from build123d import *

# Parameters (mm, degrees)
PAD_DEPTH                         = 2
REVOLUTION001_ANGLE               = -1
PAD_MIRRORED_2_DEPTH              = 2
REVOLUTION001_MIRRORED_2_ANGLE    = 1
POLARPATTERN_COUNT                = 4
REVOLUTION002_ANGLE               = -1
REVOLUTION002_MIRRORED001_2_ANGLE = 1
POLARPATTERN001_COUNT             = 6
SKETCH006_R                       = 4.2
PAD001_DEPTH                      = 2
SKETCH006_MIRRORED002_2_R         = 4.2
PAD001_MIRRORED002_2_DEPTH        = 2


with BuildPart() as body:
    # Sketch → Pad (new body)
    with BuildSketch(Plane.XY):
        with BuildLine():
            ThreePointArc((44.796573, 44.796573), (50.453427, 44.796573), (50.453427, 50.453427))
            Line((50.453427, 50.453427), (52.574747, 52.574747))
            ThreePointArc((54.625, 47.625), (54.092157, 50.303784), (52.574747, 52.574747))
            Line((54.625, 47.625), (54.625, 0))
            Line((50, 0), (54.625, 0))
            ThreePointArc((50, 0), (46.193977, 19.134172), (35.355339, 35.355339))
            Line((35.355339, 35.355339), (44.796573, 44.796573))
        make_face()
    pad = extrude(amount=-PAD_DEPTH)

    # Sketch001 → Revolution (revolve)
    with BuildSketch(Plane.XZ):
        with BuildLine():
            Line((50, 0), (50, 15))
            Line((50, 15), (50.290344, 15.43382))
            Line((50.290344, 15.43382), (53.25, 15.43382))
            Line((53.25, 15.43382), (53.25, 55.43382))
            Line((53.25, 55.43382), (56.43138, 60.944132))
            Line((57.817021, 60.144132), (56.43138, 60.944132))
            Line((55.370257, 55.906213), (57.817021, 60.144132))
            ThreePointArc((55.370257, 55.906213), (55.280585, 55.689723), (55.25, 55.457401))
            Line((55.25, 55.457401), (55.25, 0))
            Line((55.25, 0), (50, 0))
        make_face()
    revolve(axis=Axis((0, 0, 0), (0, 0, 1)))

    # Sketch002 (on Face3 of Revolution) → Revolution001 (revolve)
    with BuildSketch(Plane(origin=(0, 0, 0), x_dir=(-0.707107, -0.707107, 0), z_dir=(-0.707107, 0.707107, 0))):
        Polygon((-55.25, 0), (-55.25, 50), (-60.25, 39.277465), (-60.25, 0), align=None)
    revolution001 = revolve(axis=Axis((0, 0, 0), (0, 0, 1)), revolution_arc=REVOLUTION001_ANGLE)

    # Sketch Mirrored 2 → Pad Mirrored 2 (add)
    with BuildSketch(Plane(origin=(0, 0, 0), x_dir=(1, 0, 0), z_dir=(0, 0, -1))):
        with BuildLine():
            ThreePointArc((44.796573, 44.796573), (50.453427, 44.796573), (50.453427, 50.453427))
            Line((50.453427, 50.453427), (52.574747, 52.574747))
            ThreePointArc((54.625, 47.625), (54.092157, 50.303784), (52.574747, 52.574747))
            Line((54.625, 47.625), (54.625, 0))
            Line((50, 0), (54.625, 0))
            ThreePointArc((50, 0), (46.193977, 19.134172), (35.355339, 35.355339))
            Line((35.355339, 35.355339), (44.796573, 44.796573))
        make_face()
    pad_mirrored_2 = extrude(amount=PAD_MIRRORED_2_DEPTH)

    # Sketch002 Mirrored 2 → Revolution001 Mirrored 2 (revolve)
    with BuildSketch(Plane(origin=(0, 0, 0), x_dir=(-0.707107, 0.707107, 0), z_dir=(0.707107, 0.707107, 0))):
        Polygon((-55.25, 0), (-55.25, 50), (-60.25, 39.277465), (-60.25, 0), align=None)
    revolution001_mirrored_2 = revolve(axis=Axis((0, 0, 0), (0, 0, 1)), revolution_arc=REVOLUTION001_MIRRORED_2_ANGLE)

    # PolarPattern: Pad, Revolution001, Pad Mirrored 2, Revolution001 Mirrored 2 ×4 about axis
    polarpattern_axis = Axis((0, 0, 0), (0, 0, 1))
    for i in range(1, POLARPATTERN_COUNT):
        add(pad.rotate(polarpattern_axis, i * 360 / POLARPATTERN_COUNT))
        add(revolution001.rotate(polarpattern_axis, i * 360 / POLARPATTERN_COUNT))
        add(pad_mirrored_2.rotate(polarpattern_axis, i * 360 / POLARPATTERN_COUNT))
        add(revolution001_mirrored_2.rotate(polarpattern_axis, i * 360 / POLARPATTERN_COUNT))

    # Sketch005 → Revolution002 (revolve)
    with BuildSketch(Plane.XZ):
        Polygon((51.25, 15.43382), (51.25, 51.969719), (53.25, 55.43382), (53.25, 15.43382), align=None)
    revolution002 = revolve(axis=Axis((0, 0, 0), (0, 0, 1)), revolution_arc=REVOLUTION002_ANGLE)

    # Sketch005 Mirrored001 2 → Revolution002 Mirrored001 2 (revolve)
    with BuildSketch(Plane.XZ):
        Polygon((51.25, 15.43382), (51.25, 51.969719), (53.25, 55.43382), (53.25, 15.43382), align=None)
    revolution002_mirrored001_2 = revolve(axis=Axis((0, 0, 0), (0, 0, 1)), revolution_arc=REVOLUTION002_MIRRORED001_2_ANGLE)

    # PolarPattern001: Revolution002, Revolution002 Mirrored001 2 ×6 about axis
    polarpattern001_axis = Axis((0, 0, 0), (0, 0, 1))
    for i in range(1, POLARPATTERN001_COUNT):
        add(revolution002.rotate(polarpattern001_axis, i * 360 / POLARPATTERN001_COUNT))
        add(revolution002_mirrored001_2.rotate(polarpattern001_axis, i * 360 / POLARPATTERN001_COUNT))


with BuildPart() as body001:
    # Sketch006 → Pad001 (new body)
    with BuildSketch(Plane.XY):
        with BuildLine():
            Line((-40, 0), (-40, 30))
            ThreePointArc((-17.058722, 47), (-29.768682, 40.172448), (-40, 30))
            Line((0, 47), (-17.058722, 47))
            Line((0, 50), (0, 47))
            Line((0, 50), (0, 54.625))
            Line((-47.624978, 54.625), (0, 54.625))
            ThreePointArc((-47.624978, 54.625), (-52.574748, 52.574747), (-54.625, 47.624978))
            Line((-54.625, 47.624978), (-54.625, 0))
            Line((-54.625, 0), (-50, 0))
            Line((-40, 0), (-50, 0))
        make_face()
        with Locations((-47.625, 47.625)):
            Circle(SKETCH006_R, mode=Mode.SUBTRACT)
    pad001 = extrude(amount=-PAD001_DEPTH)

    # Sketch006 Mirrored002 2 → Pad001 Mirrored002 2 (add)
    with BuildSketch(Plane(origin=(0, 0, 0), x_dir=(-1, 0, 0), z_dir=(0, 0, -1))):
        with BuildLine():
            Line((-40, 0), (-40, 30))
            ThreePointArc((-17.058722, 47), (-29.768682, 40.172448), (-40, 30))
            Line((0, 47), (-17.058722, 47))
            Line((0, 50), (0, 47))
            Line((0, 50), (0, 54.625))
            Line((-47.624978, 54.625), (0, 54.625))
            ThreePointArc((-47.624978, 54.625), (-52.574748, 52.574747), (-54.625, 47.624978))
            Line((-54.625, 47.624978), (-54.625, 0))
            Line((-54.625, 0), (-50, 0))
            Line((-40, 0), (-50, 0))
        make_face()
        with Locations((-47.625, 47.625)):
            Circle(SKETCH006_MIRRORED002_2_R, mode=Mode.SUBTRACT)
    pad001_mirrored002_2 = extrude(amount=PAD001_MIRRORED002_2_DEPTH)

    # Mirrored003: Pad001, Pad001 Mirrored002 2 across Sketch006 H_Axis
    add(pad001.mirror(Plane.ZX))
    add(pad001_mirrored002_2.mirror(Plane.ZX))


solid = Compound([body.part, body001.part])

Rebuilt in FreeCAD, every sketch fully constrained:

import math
import FreeCAD as App
import Part
import Sketcher
Q = App.Units.Quantity


def add_polygon(sketch, points):
    """Adds a closed chain of lines whose ends are joined by coincident constraints."""
    first, n = sketch.GeometryCount, len(points)
    for a, b in zip(points, points[1:] + points[:1]):
        sketch.addGeometry(Part.LineSegment(App.Vector(*a, 0), App.Vector(*b, 0)), False)
    for i in range(n):
        sketch.addConstraint(Sketcher.Constraint("Coincident", first + i, 2, first + (i + 1) % n, 1))

doc = App.newDocument("Part")
body = doc.addObject("PartDesign::Body", "Body")

sketch1 = body.newObject("Sketcher::SketchObject", "Sketch")
sketch1.AttachmentSupport = (doc.getObject("XY_Plane"), [""])
sketch1.MapMode = "FlatFace"
sketch1.addGeometry([
    Part.ArcOfCircle(Part.Circle(App.Vector(47.6, 47.6, 0), App.Vector(0, 0, 1), 4), math.radians(-135), math.radians(45)),
    Part.LineSegment(App.Vector(44.8, 44.8, 0), App.Vector(35.4, 35.4, 0)),
    Part.ArcOfCircle(Part.Circle(App.Vector(0, 0, 0), App.Vector(0, 0, 1), 50), math.radians(0), math.radians(45)),
    Part.LineSegment(App.Vector(50, 0, 0), App.Vector(54.6, 0, 0)),
    Part.LineSegment(App.Vector(54.6, 0, 0), App.Vector(54.6, 47.6, 0)),
    Part.ArcOfCircle(Part.Circle(App.Vector(47.6, 47.6, 0), App.Vector(0, 0, 1), 7), math.radians(0), math.radians(45)),
    Part.LineSegment(App.Vector(52.6, 52.6, 0), App.Vector(50.5, 50.5, 0)),
], False)
sketch1.addConstraint([
    Sketcher.Constraint("Coincident", 0, 1, 1, 1),
    Sketcher.Constraint("Coincident", 1, 2, 2, 2),
    Sketcher.Constraint("Coincident", 2, 1, 3, 1),
    Sketcher.Constraint("Coincident", 3, 2, 4, 1),
    Sketcher.Constraint("Tangent", 4, 2, 5, 1),
    Sketcher.Constraint("Coincident", 5, 2, 6, 1),
    Sketcher.Constraint("Coincident", 6, 2, 0, 2),
    Sketcher.Constraint("Horizontal", 3),
    Sketcher.Constraint("Vertical", 4),
    Sketcher.Constraint("Coincident", 2, 3, -1, 1),
    Sketcher.Constraint("Coincident", 5, 3, 0, 3),
    Sketcher.Constraint("PointOnObject", 2, 1, -1),
    Sketcher.Constraint("Parallel", 1, 6),
    Sketcher.Constraint("Radius", 0, 4.0),
    Sketcher.Constraint("Angle", 1, Q("-135 deg")),
    Sketcher.Constraint("Distance", 6, 3.0),
    Sketcher.Constraint("DistanceX", -1, 1, 2, 1, 50.0),
    Sketcher.Constraint("DistanceX", 3, 1, 3, 2, 4.625),
    Sketcher.Constraint("DistanceY", 4, 1, 4, 2, 47.625),
    Sketcher.Constraint("DistanceX", -1, 1, 1, 2, 35.355339),
    Sketcher.Constraint("DistanceX", 5, 3, 5, 2, 4.94974),
])
pad1 = body.newObject("PartDesign::Pad", "Pad")
pad1.Profile = sketch1
pad1.Length = 2
pad1.Reversed = True

sketch2 = body.newObject("Sketcher::SketchObject", "Sketch001")
sketch2.AttachmentSupport = (doc.getObject("XZ_Plane"), [""])
sketch2.MapMode = "FlatFace"
sketch2.addGeometry([
    Part.LineSegment(App.Vector(50, 15, 0), App.Vector(50, 0, 0)),
    Part.LineSegment(App.Vector(50, 0, 0), App.Vector(55.25, 0, 0)),
    Part.LineSegment(App.Vector(55.25, 0, 0), App.Vector(55.25, 55.46, 0)),
    Part.ArcOfCircle(Part.Circle(App.Vector(56.15, 55.46, 0), App.Vector(0, 0, 1), 0.9), math.radians(150), math.radians(180)),
    Part.LineSegment(App.Vector(55.37, 55.91, 0), App.Vector(57.82, 60.14, 0)),
    Part.LineSegment(App.Vector(57.82, 60.14, 0), App.Vector(56.43, 60.94, 0)),
    Part.LineSegment(App.Vector(56.43, 60.94, 0), App.Vector(53.25, 55.43, 0)),
    Part.LineSegment(App.Vector(53.25, 55.43, 0), App.Vector(53.25, 15.43, 0)),
    Part.LineSegment(App.Vector(53.25, 15.43, 0), App.Vector(50.29, 15.43, 0)),
    Part.LineSegment(App.Vector(50.29, 15.43, 0), App.Vector(50, 15, 0)),
], False)
sketch2.addConstraint([
    Sketcher.Constraint("Coincident", 0, 2, 1, 1),
    Sketcher.Constraint("Coincident", 1, 2, 2, 1),
    Sketcher.Constraint("Coincident", 2, 2, 3, 2),
    Sketcher.Constraint("Coincident", 3, 1, 4, 1),
    Sketcher.Constraint("Coincident", 4, 2, 5, 1),
    Sketcher.Constraint("Coincident", 5, 2, 6, 1),
    Sketcher.Constraint("Coincident", 6, 2, 7, 1),
    Sketcher.Constraint("Coincident", 7, 2, 8, 1),
    Sketcher.Constraint("Coincident", 8, 2, 9, 1),
    Sketcher.Constraint("Coincident", 9, 2, 0, 1),
    Sketcher.Constraint("Vertical", 0),
    Sketcher.Constraint("Horizontal", 1),
    Sketcher.Constraint("Vertical", 2),
    Sketcher.Constraint("Vertical", 7),
    Sketcher.Constraint("Horizontal", 8),
    Sketcher.Constraint("PointOnObject", 0, 2, -1),
    Sketcher.Constraint("Perpendicular", 4, 5),
    Sketcher.Constraint("Perpendicular", 5, 6),
    Sketcher.Constraint("DistanceY", 0, 2, 0, 1, 15.0),
    Sketcher.Constraint("DistanceY", 7, 2, 7, 1, 40.0),
    Sketcher.Constraint("Angle", 4, Q("59.999997 deg")),
    Sketcher.Constraint("DistanceX", -1, 1, 0, 2, 50.0),
    Sketcher.Constraint("DistanceX", 6, 2, 2, 2, 2.0),
    Sketcher.Constraint("Distance", 5, 1.6),
    Sketcher.Constraint("DistanceX", 1, 1, 1, 2, 5.25),
    Sketcher.Constraint("DistanceY", 2, 1, 2, 2, 55.457401),
    Sketcher.Constraint("Radius", 3, 0.897627),
    Sketcher.Constraint("Distance", 6, 6.36276),
    Sketcher.Constraint("DistanceX", 8, 2, 8, 1, 2.959656),
    Sketcher.Constraint("DistanceY", -1, 1, 6, 2, 55.43382),
    Sketcher.Constraint("DistanceY", 2, 2, 3, 1, 0.448812),
])
revolution = body.newObject("PartDesign::Revolution", "Revolution")
revolution.Profile = sketch2
revolution.ReferenceAxis = (sketch2, ["V_Axis"])
revolution.Angle = 360

sketch3 = body.newObject("Sketcher::SketchObject", "Sketch002")
sketch3.Placement = App.Placement(App.Vector(0, 0, 0), App.Rotation(App.Vector(-0.707106781, -0.707106781, 0), App.Vector(0, 0, 0.999999999), App.Vector(-0.707106781, 0.707106781, 0), "ZXY"))
add_polygon(sketch3, [(-55.2, 0), (-55.2, 50), (-60.2, 39.3), (-60.2, 0)])
sketch3.addConstraint([
    Sketcher.Constraint("Vertical", 0),
    Sketcher.Constraint("Vertical", 2),
    Sketcher.Constraint("Horizontal", 3),
    Sketcher.Constraint("PointOnObject", 2, 2, -1),
    Sketcher.Constraint("DistanceX", 3, 1, 3, 2, 5.0),
    Sketcher.Constraint("DistanceY", 0, 1, 0, 2, 50.0),
    Sketcher.Constraint("Angle", 1, Q("-114.999999 deg")),
    Sketcher.Constraint("DistanceX", 0, 2, -1, 1, 55.25),
])
revolution2 = body.newObject("PartDesign::Revolution", "Revolution001")
revolution2.Profile = sketch3
revolution2.ReferenceAxis = (sketch3, ["V_Axis"])
revolution2.Angle = 1
revolution2.Reversed = True

sketch4 = body.newObject("Sketcher::SketchObject", "Sketch003")
sketch4.AttachmentSupport = (doc.getObject("XY_Plane"), [""])
sketch4.MapMode = "FlatFace"
sketch4.addGeometry([
    Part.ArcOfCircle(Part.Circle(App.Vector(47.6, -47.6, 0), App.Vector(0, 0, 1), 4), math.radians(-45), math.radians(135)),
    Part.LineSegment(App.Vector(44.8, -44.8, 0), App.Vector(35.4, -35.4, 0)),
    Part.ArcOfCircle(Part.Circle(App.Vector(0, 0, 0), App.Vector(0, 0, 1), 50), math.radians(-45), math.radians(0)),
    Part.LineSegment(App.Vector(50, 0, 0), App.Vector(54.6, 0, 0)),
    Part.LineSegment(App.Vector(54.6, 0, 0), App.Vector(54.6, -47.6, 0)),
    Part.ArcOfCircle(Part.Circle(App.Vector(47.6, -47.6, 0), App.Vector(0, 0, 1), 7), math.radians(-45), math.radians(0)),
    Part.LineSegment(App.Vector(52.6, -52.6, 0), App.Vector(50.5, -50.5, 0)),
], False)
sketch4.addConstraint([
    Sketcher.Constraint("Coincident", 0, 2, 1, 1),
    Sketcher.Constraint("Coincident", 1, 2, 2, 1),
    Sketcher.Constraint("Coincident", 2, 2, 3, 1),
    Sketcher.Constraint("Coincident", 3, 2, 4, 1),
    Sketcher.Constraint("Tangent", 4, 2, 5, 2),
    Sketcher.Constraint("Coincident", 5, 1, 6, 1),
    Sketcher.Constraint("Coincident", 6, 2, 0, 1),
    Sketcher.Constraint("Horizontal", 3),
    Sketcher.Constraint("Vertical", 4),
    Sketcher.Constraint("Coincident", 2, 3, -1, 1),
    Sketcher.Constraint("Coincident", 5, 3, 0, 3),
    Sketcher.Constraint("PointOnObject", 2, 2, -1),
    Sketcher.Constraint("Parallel", 1, 6),
    Sketcher.Constraint("Radius", 0, 4.0),
    Sketcher.Constraint("Angle", 1, Q("135 deg")),
    Sketcher.Constraint("Distance", 6, 3.0),
    Sketcher.Constraint("DistanceX", -1, 1, 2, 2, 50.0),
    Sketcher.Constraint("DistanceX", 3, 1, 3, 2, 4.625),
    Sketcher.Constraint("DistanceY", 4, 2, 4, 1, 47.625),
    Sketcher.Constraint("DistanceX", -1, 1, 1, 2, 35.355339),
    Sketcher.Constraint("DistanceX", 5, 3, 5, 1, 4.94974),
])
pad2 = body.newObject("PartDesign::Pad", "Pad001")
pad2.Profile = sketch4
pad2.Length = 2
pad2.Reversed = True

sketch5 = body.newObject("Sketcher::SketchObject", "Sketch004")
sketch5.Placement = App.Placement(App.Vector(0, 0, 0), App.Rotation(App.Vector(-0.707106781, 0.707106781, 0), App.Vector(0, 0, 0.999999999), App.Vector(0.707106781, 0.707106781, 0), "ZXY"))
add_polygon(sketch5, [(-55.2, 0), (-55.2, 50), (-60.2, 39.3), (-60.2, 0)])
sketch5.addConstraint([
    Sketcher.Constraint("Vertical", 0),
    Sketcher.Constraint("Vertical", 2),
    Sketcher.Constraint("Horizontal", 3),
    Sketcher.Constraint("PointOnObject", 2, 2, -1),
    Sketcher.Constraint("DistanceX", 3, 1, 3, 2, 5.0),
    Sketcher.Constraint("DistanceY", 0, 1, 0, 2, 50.0),
    Sketcher.Constraint("Angle", 1, Q("-114.999999 deg")),
    Sketcher.Constraint("DistanceX", 0, 2, -1, 1, 55.25),
])
revolution3 = body.newObject("PartDesign::Revolution", "Revolution002")
revolution3.Profile = sketch5
revolution3.ReferenceAxis = (sketch5, ["V_Axis"])
revolution3.Angle = 1
doc.recompute()

polarpattern = body.newObject("PartDesign::PolarPattern", "PolarPattern")
polarpattern.Originals = [pad1, revolution2, pad2, revolution3]
polarpattern.Axis = (doc.getObject("Z_Axis"), [""])
polarpattern.Angle = 360
polarpattern.Occurrences = 4
body.Tip = polarpattern

sketch6 = body.newObject("Sketcher::SketchObject", "Sketch005")
sketch6.AttachmentSupport = (doc.getObject("XZ_Plane"), [""])
sketch6.MapMode = "FlatFace"
add_polygon(sketch6, [(51.2, 52), (51.2, 15.4), (53.2, 15.4), (53.2, 55.4)])
sketch6.addConstraint([
    Sketcher.Constraint("Vertical", 0),
    Sketcher.Constraint("Horizontal", 1),
    Sketcher.Constraint("Vertical", 2),
    Sketcher.Constraint("DistanceX", 1, 1, 1, 2, 2.0),
    Sketcher.Constraint("DistanceY", 2, 1, 2, 2, 40.0),
    Sketcher.Constraint("Angle", 3, Q("-120.000004 deg")),
    Sketcher.Constraint("DistanceX", -1, 1, 0, 2, 51.25),
    Sketcher.Constraint("DistanceY", -1, 1, 0, 2, 15.43382),
])
revolution4 = body.newObject("PartDesign::Revolution", "Revolution003")
revolution4.Profile = sketch6
revolution4.ReferenceAxis = (sketch6, ["V_Axis"])
revolution4.Angle = 1
revolution4.Reversed = True

sketch7 = body.newObject("Sketcher::SketchObject", "Sketch006")
sketch7.AttachmentSupport = (doc.getObject("XZ_Plane"), [""])
sketch7.MapMode = "FlatFace"
add_polygon(sketch7, [(51.2, 52), (51.2, 15.4), (53.2, 15.4), (53.2, 55.4)])
sketch7.addConstraint([
    Sketcher.Constraint("Vertical", 0),
    Sketcher.Constraint("Horizontal", 1),
    Sketcher.Constraint("Vertical", 2),
    Sketcher.Constraint("DistanceX", 1, 1, 1, 2, 2.0),
    Sketcher.Constraint("DistanceY", 2, 1, 2, 2, 40.0),
    Sketcher.Constraint("Angle", 3, Q("-120.000004 deg")),
    Sketcher.Constraint("DistanceX", -1, 1, 0, 2, 51.25),
    Sketcher.Constraint("DistanceY", -1, 1, 0, 2, 15.43382),
])
revolution5 = body.newObject("PartDesign::Revolution", "Revolution004")
revolution5.Profile = sketch7
revolution5.ReferenceAxis = (sketch7, ["V_Axis"])
revolution5.Angle = 1
doc.recompute()

polarpattern2 = body.newObject("PartDesign::PolarPattern", "PolarPattern001")
polarpattern2.Originals = [revolution4, revolution5]
polarpattern2.Axis = (doc.getObject("Z_Axis"), [""])
polarpattern2.Angle = 360
polarpattern2.Occurrences = 6
body.Tip = polarpattern2
body2 = doc.addObject("PartDesign::Body", "Body001")

sketch8 = body2.newObject("Sketcher::SketchObject", "Sketch007")
sketch8.AttachmentSupport = (doc.getObject("XY_Plane001"), [""])
sketch8.MapMode = "FlatFace"
sketch8.addGeometry([
    Part.LineSegment(App.Vector(-40, 0, 0), App.Vector(-40, 30, 0)),
    Part.ArcOfCircle(Part.Circle(App.Vector(0, 0, 0), App.Vector(0, 0, 1), 50), math.radians(110), math.radians(143)),
    Part.LineSegment(App.Vector(-17.1, 47, 0), App.Vector(0, 47, 0)),
    Part.LineSegment(App.Vector(0, 47, 0), App.Vector(0, 54.6, 0)),
    Part.LineSegment(App.Vector(0, 54.6, 0), App.Vector(-47.6, 54.6, 0)),
    Part.ArcOfCircle(Part.Circle(App.Vector(-47.6, 47.6, 0), App.Vector(0, 0, 1), 7), math.radians(90), math.radians(180)),
    Part.LineSegment(App.Vector(-54.6, 47.6, 0), App.Vector(-54.6, 0, 0)),
    Part.LineSegment(App.Vector(-54.6, 0, 0), App.Vector(-40, 0, 0)),
    Part.Circle(App.Vector(-47.6, 47.6, 0), App.Vector(0, 0, 1), 4.2),
], False)
sketch8.addConstraint([
    Sketcher.Constraint("Coincident", 0, 2, 1, 2),
    Sketcher.Constraint("Coincident", 1, 1, 2, 1),
    Sketcher.Constraint("Coincident", 2, 2, 3, 1),
    Sketcher.Constraint("Coincident", 3, 2, 4, 1),
    Sketcher.Constraint("Coincident", 4, 2, 5, 1),
    Sketcher.Constraint("Coincident", 5, 2, 6, 1),
    Sketcher.Constraint("Coincident", 6, 2, 7, 1),
    Sketcher.Constraint("Coincident", 7, 2, 0, 1),
    Sketcher.Constraint("Vertical", 0),
    Sketcher.Constraint("Horizontal", 2),
    Sketcher.Constraint("Vertical", 3),
    Sketcher.Constraint("Horizontal", 4),
    Sketcher.Constraint("Vertical", 6),
    Sketcher.Constraint("Horizontal", 7),
    Sketcher.Constraint("Coincident", 1, 3, -1, 1),
    Sketcher.Constraint("Coincident", 8, 3, 5, 3),
    Sketcher.Constraint("PointOnObject", 2, 2, -2),
    Sketcher.Constraint("PointOnObject", 6, 2, -1),
    Sketcher.Constraint("Equal", 4, 6),
    Sketcher.Constraint("Radius", 1, 49.999998),
    Sketcher.Constraint("Radius", 5, 7.0),
    Sketcher.Constraint("Diameter", 8, 8.4),
    Sketcher.Constraint("DistanceY", 0, 1, 0, 2, 30.0),
    Sketcher.Constraint("DistanceY", -1, 1, 1, 1, 47.0),
    Sketcher.Constraint("DistanceX", 7, 1, 7, 2, 14.625),
    Sketcher.Constraint("DistanceY", 3, 1, 3, 2, 7.625),
    Sketcher.Constraint("DistanceX", 4, 2, 4, 1, 47.624978),
])
pad3 = body2.newObject("PartDesign::Pad", "Pad002")
pad3.Profile = sketch8
pad3.Length = 2
pad3.Reversed = True

sketch9 = body2.newObject("Sketcher::SketchObject", "Sketch008")
sketch9.AttachmentSupport = (doc.getObject("XY_Plane001"), [""])
sketch9.MapMode = "FlatFace"
sketch9.addGeometry([
    Part.LineSegment(App.Vector(40, 0, 0), App.Vector(40, 30, 0)),
    Part.ArcOfCircle(Part.Circle(App.Vector(0, 0, 0), App.Vector(0, 0, 1), 50), math.radians(37), math.radians(70)),
    Part.LineSegment(App.Vector(17.1, 47, 0), App.Vector(0, 47, 0)),
    Part.LineSegment(App.Vector(0, 47, 0), App.Vector(0, 54.6, 0)),
    Part.LineSegment(App.Vector(0, 54.6, 0), App.Vector(47.6, 54.6, 0)),
    Part.ArcOfCircle(Part.Circle(App.Vector(47.6, 47.6, 0), App.Vector(0, 0, 1), 7), math.radians(0), math.radians(90)),
    Part.LineSegment(App.Vector(54.6, 47.6, 0), App.Vector(54.6, 0, 0)),
    Part.LineSegment(App.Vector(54.6, 0, 0), App.Vector(40, 0, 0)),
    Part.Circle(App.Vector(47.6, 47.6, 0), App.Vector(0, 0, 1), 4.2),
], False)
sketch9.addConstraint([
    Sketcher.Constraint("Coincident", 0, 2, 1, 1),
    Sketcher.Constraint("Coincident", 1, 2, 2, 1),
    Sketcher.Constraint("Coincident", 2, 2, 3, 1),
    Sketcher.Constraint("Coincident", 3, 2, 4, 1),
    Sketcher.Constraint("Coincident", 4, 2, 5, 2),
    Sketcher.Constraint("Coincident", 5, 1, 6, 1),
    Sketcher.Constraint("Coincident", 6, 2, 7, 1),
    Sketcher.Constraint("Coincident", 7, 2, 0, 1),
    Sketcher.Constraint("Vertical", 0),
    Sketcher.Constraint("Horizontal", 2),
    Sketcher.Constraint("Vertical", 3),
    Sketcher.Constraint("Horizontal", 4),
    Sketcher.Constraint("Vertical", 6),
    Sketcher.Constraint("Horizontal", 7),
    Sketcher.Constraint("Coincident", 1, 3, -1, 1),
    Sketcher.Constraint("Coincident", 8, 3, 5, 3),
    Sketcher.Constraint("PointOnObject", 2, 2, -2),
    Sketcher.Constraint("PointOnObject", 6, 2, -1),
    Sketcher.Constraint("Equal", 4, 6),
    Sketcher.Constraint("Radius", 1, 49.999998),
    Sketcher.Constraint("Radius", 5, 7.0),
    Sketcher.Constraint("Diameter", 8, 8.4),
    Sketcher.Constraint("DistanceY", 0, 1, 0, 2, 30.0),
    Sketcher.Constraint("DistanceY", -1, 1, 1, 2, 47.0),
    Sketcher.Constraint("DistanceX", 7, 2, 7, 1, 14.625),
    Sketcher.Constraint("DistanceY", 3, 1, 3, 2, 7.625),
    Sketcher.Constraint("DistanceX", 4, 1, 4, 2, 47.624978),
])
pad4 = body2.newObject("PartDesign::Pad", "Pad003")
pad4.Profile = sketch9
pad4.Length = 2
pad4.Reversed = True
doc.recompute()

mirrored = body2.newObject("PartDesign::Mirrored", "Mirrored")
mirrored.Originals = [pad3, pad4]
mirrored.MirrorPlane = (doc.getObject("XZ_Plane001"), [""])
body2.Tip = mirrored

doc.recompute()
